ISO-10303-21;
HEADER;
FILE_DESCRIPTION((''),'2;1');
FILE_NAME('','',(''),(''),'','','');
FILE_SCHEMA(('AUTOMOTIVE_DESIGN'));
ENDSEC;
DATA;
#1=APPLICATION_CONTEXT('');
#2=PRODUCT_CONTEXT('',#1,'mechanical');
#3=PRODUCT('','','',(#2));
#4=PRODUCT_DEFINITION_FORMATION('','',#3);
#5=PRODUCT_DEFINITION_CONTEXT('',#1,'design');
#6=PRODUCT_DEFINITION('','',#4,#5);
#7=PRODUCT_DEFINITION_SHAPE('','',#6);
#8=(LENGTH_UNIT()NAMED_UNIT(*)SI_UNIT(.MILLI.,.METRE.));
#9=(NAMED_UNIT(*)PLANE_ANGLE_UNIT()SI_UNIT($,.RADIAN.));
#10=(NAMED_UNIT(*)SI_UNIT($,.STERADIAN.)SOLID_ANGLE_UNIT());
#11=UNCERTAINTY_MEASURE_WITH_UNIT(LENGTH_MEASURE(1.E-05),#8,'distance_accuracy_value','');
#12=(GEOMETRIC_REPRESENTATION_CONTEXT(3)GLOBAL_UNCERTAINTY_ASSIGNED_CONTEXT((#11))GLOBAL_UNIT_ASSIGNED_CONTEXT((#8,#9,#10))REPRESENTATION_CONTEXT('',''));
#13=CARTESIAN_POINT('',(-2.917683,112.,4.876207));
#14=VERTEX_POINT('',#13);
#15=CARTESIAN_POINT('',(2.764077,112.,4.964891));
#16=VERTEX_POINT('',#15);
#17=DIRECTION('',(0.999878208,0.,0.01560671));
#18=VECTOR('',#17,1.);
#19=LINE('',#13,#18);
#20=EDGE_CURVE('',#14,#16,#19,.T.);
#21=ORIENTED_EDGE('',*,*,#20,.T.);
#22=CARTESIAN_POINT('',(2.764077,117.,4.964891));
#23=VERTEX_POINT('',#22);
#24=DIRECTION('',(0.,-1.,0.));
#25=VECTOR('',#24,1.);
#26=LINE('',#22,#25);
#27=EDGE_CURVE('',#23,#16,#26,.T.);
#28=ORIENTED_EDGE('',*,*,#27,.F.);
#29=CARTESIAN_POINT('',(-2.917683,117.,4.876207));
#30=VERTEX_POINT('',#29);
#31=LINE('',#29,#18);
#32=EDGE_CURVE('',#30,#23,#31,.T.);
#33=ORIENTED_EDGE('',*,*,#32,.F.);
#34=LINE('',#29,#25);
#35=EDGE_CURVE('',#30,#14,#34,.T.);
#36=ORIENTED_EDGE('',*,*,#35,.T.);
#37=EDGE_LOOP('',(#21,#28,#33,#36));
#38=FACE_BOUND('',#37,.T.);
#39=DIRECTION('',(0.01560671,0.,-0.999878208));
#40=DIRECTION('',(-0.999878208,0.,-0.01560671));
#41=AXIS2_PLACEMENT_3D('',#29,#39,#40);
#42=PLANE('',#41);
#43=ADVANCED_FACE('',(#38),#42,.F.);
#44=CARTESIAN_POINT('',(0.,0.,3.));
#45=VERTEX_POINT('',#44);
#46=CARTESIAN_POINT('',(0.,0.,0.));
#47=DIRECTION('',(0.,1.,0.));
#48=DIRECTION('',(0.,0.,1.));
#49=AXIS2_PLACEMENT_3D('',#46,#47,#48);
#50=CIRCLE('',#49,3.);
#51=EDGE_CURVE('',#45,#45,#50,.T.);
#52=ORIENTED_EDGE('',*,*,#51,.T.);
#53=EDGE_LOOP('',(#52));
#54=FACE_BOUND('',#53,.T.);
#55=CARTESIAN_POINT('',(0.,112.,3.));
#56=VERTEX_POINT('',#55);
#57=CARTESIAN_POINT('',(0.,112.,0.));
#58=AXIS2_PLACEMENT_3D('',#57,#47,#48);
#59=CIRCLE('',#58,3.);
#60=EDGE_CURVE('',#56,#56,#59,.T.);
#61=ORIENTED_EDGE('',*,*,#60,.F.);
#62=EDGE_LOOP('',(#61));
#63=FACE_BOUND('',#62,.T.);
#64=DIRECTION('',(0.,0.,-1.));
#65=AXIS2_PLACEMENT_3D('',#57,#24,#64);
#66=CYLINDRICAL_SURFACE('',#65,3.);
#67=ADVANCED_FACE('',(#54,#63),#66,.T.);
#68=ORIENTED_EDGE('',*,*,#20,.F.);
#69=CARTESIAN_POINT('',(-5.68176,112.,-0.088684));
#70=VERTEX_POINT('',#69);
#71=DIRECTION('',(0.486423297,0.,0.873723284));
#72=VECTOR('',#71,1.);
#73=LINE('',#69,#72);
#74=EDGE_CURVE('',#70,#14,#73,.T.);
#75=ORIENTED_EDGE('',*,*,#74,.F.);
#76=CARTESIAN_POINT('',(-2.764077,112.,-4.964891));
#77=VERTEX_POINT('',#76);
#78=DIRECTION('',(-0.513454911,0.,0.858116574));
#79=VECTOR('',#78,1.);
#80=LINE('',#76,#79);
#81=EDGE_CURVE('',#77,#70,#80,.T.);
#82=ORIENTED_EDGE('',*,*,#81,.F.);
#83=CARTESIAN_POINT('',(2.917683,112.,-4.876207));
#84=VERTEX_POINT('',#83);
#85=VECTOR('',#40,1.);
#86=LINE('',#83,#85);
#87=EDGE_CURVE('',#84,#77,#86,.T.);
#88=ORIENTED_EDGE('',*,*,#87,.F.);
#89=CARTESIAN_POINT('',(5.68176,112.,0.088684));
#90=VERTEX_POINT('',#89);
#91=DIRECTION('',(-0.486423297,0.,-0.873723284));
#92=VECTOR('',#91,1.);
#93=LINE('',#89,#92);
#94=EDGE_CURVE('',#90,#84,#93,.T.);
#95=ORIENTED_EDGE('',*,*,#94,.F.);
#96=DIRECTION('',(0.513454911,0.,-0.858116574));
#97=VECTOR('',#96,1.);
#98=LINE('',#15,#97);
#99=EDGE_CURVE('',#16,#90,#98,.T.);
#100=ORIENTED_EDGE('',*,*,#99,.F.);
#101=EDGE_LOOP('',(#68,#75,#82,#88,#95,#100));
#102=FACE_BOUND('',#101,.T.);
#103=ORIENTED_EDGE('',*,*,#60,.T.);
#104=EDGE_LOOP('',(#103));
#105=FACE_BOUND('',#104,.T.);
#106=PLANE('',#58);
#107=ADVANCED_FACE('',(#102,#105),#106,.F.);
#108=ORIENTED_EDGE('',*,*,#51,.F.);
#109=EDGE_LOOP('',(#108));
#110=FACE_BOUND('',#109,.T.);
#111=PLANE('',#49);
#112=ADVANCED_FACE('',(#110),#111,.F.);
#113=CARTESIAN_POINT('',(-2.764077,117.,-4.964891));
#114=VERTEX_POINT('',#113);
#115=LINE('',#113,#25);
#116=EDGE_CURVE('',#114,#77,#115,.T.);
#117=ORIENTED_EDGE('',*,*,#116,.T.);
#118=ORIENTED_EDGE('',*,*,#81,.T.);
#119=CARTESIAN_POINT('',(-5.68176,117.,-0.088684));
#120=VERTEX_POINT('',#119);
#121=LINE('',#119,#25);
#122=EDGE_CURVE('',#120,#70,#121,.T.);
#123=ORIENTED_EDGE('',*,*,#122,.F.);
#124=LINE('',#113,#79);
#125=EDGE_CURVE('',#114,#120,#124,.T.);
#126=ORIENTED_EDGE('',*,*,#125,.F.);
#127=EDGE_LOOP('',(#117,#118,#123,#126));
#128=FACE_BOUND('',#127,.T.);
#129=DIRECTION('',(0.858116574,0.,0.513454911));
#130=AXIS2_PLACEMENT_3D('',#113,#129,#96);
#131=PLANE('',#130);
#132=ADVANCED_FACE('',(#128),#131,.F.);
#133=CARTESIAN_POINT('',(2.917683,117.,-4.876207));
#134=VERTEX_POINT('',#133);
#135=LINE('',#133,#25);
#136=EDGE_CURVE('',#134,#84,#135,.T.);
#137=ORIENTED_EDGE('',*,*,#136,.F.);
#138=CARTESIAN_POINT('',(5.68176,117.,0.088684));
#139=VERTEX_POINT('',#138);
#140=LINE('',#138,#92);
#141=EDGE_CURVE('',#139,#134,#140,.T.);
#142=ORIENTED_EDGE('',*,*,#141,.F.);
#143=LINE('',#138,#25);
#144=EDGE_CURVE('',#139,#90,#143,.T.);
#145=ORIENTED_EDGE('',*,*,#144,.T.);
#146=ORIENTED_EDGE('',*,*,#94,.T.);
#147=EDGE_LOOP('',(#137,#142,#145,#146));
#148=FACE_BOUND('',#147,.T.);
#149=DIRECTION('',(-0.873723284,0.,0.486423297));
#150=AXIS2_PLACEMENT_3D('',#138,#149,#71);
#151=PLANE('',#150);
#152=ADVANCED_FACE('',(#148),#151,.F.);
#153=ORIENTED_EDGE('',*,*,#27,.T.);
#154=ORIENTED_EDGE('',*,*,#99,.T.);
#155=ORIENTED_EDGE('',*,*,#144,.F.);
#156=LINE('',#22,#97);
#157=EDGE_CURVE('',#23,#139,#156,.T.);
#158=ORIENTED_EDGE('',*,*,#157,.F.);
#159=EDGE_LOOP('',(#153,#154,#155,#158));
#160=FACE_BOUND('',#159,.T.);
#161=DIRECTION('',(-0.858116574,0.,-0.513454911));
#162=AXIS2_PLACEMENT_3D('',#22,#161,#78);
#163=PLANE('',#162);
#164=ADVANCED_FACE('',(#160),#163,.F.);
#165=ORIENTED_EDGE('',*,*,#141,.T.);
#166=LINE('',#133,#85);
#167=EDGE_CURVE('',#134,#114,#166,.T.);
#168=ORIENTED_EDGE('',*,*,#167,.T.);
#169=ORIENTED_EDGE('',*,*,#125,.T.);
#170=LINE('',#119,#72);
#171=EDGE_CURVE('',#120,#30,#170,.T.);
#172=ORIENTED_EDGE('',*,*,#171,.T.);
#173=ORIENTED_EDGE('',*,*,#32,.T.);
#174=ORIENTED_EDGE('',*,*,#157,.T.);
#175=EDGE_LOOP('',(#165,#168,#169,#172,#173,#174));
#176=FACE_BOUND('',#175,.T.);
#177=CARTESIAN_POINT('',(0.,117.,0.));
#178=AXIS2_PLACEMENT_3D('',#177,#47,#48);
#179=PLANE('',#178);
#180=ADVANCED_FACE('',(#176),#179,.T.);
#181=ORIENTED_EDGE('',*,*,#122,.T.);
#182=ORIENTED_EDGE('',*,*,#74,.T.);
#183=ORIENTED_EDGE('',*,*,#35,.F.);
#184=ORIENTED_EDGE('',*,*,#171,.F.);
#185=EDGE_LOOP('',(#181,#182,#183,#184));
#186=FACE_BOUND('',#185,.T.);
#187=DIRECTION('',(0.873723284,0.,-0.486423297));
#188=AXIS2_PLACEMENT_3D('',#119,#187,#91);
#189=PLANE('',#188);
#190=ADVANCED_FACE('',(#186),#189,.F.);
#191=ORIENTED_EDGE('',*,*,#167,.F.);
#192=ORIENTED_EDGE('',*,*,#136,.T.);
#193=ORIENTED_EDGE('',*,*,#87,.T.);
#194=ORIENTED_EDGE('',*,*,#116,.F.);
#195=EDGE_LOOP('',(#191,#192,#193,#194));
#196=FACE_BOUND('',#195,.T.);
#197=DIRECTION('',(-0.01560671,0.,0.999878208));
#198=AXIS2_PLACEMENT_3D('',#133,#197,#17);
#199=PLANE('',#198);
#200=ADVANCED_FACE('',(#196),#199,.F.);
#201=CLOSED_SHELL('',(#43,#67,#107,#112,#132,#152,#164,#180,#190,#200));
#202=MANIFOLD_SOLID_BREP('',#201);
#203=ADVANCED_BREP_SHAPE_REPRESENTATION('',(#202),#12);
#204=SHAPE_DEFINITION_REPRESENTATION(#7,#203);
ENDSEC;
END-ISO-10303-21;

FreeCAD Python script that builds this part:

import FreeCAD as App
import Part
import Sketcher
from FreeCAD import Vector

doc = App.newDocument("Part")
body = doc.addObject("PartDesign::Body", "Body")

sketch1 = doc.addObject("Sketcher::SketchObject", "Sketch")
body.addObject(sketch1)
sketch1.AttachmentSupport = (doc.XZ_Plane, [""])
sketch1.MapMode = "FlatFace"
sketch1.addGeometry(Part.Circle(Vector(0, 0, 0), Vector(0, 0, 1), 3), False)
sketch1.addConstraint([
    Sketcher.Constraint("Coincident", 0, 3, -1, 1),
    Sketcher.Constraint("Diameter", 0, 6.0),
])
pad1 = doc.addObject("PartDesign::Pad", "Pad")
body.addObject(pad1)
pad1.Profile = sketch1
pad1.Length = 112
pad1.Reversed = True

sketch2 = doc.addObject("Sketcher::SketchObject", "Sketch001")
body.addObject(sketch2)
sketch2.AttachmentSupport = (doc.XZ_Plane, [""])
sketch2.MapMode = "FlatFace"
sketch2.AttachmentOffset = App.Placement(Vector(0, 0, -112), App.Rotation())
sketch2.addGeometry([
    Part.LineSegment(Vector(2.917683, -4.876207, 0), Vector(-2.764077, -4.964891, 0)),
    Part.LineSegment(Vector(-2.764077, -4.964891, 0), Vector(-5.68176, -0.088684, 0)),
    Part.LineSegment(Vector(-5.68176, -0.088684, 0), Vector(-2.917683, 4.876207, 0)),
    Part.LineSegment(Vector(-2.917683, 4.876207, 0), Vector(2.764077, 4.964891, 0)),
    Part.LineSegment(Vector(2.764077, 4.964891, 0), Vector(5.68176, 0.088684, 0)),
    Part.LineSegment(Vector(5.68176, 0.088684, 0), Vector(2.917683, -4.876207, 0)),
], False)
sketch2.addConstraint([
    Sketcher.Constraint("Coincident", 0, 2, 1, 1),
    Sketcher.Constraint("Coincident", 1, 2, 2, 1),
    Sketcher.Constraint("Coincident", 2, 2, 3, 1),
    Sketcher.Constraint("Coincident", 3, 2, 4, 1),
    Sketcher.Constraint("Coincident", 4, 2, 5, 1),
    Sketcher.Constraint("Coincident", 5, 2, 0, 1),
    Sketcher.Constraint("Symmetric", 0, 2, 3, 2, -1, 1),
    Sketcher.Constraint("Symmetric", 1, 2, 4, 2, -1, 1),
    Sketcher.Constraint("Symmetric", 2, 2, 5, 2, -1, 1),
    Sketcher.Constraint("Equal", 0, 1),
    Sketcher.Constraint("Equal", 1, 2),
    Sketcher.Constraint("DistanceY", 0, 2, -1, 1, 4.964891),
    Sketcher.Constraint("DistanceX", 1, 2, -1, 1, 5.68176),
    Sketcher.Constraint("DistanceY", 1, 2, 2, 2, 4.964891),
    Sketcher.Constraint("DistanceX", 2, 2, 3, 2, 5.68176),
])
pad2 = doc.addObject("PartDesign::Pad", "Pad001")
body.addObject(pad2)
pad2.Profile = sketch2
pad2.Length = 5
pad2.Reversed = True

doc.recompute()
